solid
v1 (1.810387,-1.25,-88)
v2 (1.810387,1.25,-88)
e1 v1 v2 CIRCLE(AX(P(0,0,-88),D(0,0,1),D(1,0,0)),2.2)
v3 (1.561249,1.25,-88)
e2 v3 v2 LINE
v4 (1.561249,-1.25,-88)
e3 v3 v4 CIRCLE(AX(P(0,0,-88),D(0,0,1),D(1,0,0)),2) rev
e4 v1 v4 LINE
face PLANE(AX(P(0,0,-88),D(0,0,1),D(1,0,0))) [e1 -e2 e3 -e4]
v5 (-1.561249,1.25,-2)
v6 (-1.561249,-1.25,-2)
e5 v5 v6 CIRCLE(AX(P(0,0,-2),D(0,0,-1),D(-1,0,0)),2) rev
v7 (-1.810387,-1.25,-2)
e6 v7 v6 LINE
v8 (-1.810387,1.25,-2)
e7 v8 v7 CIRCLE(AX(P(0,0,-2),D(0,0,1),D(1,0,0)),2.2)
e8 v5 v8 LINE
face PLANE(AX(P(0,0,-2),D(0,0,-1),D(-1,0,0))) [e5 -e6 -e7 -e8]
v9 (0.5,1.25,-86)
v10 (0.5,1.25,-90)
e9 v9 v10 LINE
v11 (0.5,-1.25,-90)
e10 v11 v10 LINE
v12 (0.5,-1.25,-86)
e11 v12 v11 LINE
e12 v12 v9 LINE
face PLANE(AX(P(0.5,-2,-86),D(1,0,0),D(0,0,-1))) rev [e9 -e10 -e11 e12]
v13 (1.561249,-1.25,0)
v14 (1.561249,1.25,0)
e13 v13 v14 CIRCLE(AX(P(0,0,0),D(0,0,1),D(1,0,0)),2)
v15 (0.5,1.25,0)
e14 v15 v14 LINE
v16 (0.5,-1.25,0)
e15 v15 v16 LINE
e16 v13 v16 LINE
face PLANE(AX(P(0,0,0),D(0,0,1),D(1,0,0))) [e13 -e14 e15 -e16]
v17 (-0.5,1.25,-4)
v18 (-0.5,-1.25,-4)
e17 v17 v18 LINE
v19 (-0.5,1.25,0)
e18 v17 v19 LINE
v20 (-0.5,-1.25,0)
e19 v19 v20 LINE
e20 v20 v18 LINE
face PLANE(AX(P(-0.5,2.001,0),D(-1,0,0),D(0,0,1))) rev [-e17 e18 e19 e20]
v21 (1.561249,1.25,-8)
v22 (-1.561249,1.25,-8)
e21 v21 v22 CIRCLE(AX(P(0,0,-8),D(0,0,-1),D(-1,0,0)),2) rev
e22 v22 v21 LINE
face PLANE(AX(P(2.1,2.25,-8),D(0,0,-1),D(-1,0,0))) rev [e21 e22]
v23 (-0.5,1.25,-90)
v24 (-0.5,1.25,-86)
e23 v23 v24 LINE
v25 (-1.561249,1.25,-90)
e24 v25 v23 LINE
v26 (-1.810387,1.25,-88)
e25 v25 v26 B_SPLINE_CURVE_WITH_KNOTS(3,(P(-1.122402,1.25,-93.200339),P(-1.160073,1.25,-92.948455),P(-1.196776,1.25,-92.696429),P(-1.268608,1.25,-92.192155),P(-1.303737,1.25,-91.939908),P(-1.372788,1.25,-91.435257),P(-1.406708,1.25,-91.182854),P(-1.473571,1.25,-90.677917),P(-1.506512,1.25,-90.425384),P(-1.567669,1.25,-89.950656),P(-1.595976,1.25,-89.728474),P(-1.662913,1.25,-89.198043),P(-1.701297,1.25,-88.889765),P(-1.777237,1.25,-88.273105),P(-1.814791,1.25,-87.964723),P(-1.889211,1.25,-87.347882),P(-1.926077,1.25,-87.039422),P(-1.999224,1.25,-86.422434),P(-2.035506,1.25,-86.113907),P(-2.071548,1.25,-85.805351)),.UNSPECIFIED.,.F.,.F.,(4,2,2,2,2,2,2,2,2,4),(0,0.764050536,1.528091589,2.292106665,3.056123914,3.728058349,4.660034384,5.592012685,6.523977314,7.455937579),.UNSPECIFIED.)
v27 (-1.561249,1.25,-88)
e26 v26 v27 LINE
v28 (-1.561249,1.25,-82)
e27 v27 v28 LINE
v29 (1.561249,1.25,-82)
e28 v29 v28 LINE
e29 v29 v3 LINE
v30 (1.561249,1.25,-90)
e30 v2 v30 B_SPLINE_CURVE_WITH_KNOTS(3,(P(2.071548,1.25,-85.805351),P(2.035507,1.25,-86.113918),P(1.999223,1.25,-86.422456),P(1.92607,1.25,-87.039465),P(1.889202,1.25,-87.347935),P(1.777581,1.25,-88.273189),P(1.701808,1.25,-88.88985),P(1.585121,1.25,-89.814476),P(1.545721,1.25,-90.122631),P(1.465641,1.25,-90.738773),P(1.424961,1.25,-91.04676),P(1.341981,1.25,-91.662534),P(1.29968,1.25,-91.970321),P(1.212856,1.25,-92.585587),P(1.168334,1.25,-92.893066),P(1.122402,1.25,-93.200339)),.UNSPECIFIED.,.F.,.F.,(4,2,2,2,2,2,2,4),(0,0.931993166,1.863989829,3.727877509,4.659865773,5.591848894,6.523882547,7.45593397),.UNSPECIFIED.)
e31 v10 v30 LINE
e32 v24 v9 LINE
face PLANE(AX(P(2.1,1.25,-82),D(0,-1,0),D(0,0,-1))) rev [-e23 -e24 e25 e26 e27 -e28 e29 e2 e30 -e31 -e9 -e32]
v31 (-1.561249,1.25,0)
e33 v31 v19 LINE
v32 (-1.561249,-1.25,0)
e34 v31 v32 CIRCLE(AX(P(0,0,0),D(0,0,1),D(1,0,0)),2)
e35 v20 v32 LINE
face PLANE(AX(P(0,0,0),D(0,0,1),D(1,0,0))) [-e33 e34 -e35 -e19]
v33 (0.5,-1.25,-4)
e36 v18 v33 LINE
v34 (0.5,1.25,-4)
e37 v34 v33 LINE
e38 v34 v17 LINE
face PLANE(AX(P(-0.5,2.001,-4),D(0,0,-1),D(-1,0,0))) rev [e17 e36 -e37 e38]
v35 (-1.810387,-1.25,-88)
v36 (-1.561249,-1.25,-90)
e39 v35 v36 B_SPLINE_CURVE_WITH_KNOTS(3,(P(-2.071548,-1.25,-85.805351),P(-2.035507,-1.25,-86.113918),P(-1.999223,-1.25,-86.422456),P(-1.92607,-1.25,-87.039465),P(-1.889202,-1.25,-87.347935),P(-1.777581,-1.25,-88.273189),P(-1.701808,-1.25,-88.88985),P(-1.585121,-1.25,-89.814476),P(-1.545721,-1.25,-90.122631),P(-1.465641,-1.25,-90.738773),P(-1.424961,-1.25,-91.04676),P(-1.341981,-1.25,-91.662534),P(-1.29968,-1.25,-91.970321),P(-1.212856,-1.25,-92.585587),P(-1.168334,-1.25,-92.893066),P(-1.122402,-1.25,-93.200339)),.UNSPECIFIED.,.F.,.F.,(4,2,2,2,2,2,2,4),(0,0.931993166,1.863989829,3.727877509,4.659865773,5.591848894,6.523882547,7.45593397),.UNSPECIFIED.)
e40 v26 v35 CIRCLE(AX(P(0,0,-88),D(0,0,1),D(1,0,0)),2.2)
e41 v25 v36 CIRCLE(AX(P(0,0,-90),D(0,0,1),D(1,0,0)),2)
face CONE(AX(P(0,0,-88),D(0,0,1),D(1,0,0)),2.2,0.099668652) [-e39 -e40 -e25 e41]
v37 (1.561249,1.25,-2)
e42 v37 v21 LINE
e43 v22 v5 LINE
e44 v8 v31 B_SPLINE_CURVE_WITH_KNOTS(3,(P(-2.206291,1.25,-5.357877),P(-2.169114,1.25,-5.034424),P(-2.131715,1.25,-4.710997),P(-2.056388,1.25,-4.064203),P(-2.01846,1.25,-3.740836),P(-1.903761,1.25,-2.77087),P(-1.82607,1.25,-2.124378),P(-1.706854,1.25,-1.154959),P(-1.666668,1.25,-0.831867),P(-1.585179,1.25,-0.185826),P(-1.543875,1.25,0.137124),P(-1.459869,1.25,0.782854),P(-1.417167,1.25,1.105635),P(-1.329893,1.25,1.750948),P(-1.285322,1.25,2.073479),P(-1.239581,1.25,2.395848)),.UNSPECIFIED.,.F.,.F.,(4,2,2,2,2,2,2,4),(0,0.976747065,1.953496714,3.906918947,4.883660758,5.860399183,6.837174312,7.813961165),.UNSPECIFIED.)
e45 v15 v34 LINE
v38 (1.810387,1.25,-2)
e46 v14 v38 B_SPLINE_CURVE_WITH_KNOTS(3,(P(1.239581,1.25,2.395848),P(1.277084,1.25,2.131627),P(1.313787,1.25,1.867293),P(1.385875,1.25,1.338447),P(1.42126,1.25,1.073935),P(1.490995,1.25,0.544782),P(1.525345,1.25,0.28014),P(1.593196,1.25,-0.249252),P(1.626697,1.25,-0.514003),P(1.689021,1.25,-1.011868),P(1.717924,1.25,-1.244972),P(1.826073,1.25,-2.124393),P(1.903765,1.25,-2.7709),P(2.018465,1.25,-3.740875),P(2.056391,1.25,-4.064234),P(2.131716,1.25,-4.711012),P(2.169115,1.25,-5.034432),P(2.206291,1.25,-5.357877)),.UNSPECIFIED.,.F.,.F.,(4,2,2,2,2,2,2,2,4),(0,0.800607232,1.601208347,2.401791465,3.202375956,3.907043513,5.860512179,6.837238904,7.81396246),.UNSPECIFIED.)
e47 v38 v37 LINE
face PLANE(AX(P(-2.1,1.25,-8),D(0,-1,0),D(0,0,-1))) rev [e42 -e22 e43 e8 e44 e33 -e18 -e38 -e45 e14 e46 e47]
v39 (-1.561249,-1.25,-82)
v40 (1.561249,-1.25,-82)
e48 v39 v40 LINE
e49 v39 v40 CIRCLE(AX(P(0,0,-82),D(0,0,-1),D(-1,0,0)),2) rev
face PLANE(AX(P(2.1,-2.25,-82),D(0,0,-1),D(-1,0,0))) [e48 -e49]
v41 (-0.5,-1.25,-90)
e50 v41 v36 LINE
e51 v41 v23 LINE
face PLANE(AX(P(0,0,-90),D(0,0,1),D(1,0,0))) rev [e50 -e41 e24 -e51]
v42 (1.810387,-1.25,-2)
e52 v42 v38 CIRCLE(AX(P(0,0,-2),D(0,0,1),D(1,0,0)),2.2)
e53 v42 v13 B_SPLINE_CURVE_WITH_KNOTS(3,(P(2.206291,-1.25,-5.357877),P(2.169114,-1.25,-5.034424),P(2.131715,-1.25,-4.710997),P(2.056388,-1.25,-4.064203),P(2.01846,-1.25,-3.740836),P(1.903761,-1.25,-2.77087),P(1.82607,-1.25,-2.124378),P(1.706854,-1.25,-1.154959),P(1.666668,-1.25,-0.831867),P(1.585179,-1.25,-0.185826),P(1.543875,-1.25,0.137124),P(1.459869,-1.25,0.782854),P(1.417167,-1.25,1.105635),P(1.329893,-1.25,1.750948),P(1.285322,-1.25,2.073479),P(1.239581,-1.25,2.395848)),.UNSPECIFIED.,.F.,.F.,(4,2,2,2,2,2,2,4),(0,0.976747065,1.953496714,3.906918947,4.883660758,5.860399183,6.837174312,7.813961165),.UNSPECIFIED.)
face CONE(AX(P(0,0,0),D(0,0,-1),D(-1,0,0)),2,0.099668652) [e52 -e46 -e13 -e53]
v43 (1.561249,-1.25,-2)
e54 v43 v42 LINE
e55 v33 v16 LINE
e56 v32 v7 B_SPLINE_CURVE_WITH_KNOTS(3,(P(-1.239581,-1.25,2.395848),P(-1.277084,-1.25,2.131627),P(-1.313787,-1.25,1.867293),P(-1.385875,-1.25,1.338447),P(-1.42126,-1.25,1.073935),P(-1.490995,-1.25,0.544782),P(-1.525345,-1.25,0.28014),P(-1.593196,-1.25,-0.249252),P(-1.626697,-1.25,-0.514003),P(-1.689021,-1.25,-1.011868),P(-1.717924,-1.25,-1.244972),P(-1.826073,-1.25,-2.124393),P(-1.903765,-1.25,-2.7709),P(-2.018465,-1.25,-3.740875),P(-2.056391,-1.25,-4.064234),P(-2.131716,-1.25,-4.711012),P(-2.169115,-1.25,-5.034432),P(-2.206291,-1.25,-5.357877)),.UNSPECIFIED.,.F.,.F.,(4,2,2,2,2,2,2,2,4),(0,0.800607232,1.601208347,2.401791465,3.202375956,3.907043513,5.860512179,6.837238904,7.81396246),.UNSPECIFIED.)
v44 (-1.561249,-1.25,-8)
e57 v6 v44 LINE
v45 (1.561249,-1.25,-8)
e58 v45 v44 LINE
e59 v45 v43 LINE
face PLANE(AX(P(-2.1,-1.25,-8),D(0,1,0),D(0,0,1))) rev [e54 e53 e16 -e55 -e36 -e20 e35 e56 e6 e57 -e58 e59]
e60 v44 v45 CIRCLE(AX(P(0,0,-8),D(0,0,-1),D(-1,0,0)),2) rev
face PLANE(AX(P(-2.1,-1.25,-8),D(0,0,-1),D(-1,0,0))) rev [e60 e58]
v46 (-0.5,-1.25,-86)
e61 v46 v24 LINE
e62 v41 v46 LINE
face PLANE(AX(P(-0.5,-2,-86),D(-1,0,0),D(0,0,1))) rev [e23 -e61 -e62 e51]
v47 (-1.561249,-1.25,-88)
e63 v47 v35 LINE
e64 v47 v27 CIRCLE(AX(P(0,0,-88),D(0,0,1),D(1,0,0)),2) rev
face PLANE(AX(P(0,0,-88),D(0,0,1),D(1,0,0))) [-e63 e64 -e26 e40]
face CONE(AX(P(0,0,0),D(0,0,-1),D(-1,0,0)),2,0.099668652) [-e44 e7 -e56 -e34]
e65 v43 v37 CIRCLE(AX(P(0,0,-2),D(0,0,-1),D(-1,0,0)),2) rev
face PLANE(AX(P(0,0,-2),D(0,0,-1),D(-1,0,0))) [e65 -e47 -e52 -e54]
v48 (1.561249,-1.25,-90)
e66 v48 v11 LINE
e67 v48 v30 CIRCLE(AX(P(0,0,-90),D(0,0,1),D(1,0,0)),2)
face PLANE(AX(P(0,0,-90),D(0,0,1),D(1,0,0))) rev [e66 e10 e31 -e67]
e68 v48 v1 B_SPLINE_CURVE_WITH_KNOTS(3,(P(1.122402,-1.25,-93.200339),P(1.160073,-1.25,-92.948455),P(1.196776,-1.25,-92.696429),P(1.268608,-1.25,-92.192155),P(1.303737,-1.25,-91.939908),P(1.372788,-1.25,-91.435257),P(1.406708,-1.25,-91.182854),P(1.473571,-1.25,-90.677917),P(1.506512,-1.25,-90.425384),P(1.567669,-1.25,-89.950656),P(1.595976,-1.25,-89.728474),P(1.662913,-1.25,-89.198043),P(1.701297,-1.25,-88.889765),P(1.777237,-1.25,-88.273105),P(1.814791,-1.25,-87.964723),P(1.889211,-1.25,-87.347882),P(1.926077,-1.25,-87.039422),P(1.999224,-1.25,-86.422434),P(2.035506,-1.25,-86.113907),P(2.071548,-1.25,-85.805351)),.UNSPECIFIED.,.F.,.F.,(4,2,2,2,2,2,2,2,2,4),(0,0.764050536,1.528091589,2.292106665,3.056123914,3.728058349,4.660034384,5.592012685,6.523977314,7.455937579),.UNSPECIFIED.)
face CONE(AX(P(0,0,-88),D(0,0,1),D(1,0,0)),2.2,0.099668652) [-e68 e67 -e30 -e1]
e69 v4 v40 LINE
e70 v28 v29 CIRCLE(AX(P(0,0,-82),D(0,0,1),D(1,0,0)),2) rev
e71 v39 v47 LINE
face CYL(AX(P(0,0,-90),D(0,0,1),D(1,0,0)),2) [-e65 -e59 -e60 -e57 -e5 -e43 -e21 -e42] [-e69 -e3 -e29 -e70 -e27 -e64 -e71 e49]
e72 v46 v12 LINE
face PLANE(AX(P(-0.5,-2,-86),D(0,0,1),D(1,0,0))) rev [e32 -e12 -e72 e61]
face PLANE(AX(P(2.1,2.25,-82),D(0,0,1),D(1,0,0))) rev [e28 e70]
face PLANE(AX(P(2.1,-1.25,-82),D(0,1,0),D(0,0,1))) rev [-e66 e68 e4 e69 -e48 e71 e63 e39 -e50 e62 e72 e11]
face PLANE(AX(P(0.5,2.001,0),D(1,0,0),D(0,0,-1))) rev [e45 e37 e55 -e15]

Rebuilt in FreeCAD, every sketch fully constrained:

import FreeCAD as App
import Part
import Sketcher

V = App.Vector
Q = App.Units.Quantity


def add_polygon(sketch, points):
    """Adds a closed chain of lines whose ends are joined by coincident constraints."""
    first, n = sketch.GeometryCount, len(points)
    for a, b in zip(points, points[1:] + points[:1]):
        sketch.addGeometry(Part.LineSegment(App.Vector(*a, 0), App.Vector(*b, 0)), False)
    for i in range(n):
        sketch.addConstraint(Sketcher.Constraint("Coincident", first + i, 2, first + (i + 1) % n, 1))

doc = App.newDocument("Part")
body = doc.addObject("PartDesign::Body", "Body")

sketch1 = doc.addObject("Sketcher::SketchObject", "Sketch")
body.addObject(sketch1)
sketch1.AttachmentSupport = (doc.XY_Plane, [""])
sketch1.MapMode = "FlatFace"
sketch1.addGeometry(Part.Circle(V(0, 0, 0), V(0, 0, 1), 2), False)
sketch1.addConstraint([
    Sketcher.Constraint("Coincident", 0, 3, -1, 1),
    Sketcher.Constraint("Diameter", 0, Q("4 mm")),
])
pad1 = doc.addObject("PartDesign::Pad", "Pad")
body.addObject(pad1)
pad1.Profile = sketch1
pad1.Length = 90
pad1.Reversed = True

sketch2 = doc.addObject("Sketcher::SketchObject", "Sketch001")
body.addObject(sketch2)
sketch2.AttachmentSupport = (doc.XZ_Plane, [""])
sketch2.MapMode = "FlatFace"
add_polygon(sketch2, [(0, -2), (0, 0), (2, 0), (2.2, -2)])
sketch2.addConstraint([
    Sketcher.Constraint("Vertical", 0),
    Sketcher.Constraint("Horizontal", 1),
    Sketcher.Constraint("Horizontal", 3),
    Sketcher.Constraint("Coincident", 0, 2, -1, 1),
    Sketcher.Constraint("Equal", 1, 0),
    Sketcher.Constraint("DistanceX", 1, 1, 1, 2, Q("2 mm")),
    Sketcher.Constraint("DistanceX", 3, 2, 3, 1, Q("2.2 mm")),
])
revolution = doc.addObject("PartDesign::Revolution", "Revolution")
body.addObject(revolution)
revolution.Profile = sketch2
revolution.ReferenceAxis = (sketch2, ["V_Axis"])
revolution.Angle = 360

sketch3 = doc.addObject("Sketcher::SketchObject", "Sketch002")
body.addObject(sketch3)
sketch3.AttachmentSupport = (doc.XY_Plane, [""])
sketch3.MapMode = "FlatFace"
add_polygon(sketch3, [(-2.1, 2.2), (-2.1, 1.2), (2.1, 1.2), (2.1, 2.2)])
add_polygon(sketch3, [(-2.1, -1.2), (-2.1, -2.2), (2.1, -2.2), (2.1, -1.2)])
sketch3.addConstraint([
    Sketcher.Constraint("Vertical", 0),
    Sketcher.Constraint("Horizontal", 1),
    Sketcher.Constraint("Vertical", 2),
    Sketcher.Constraint("Horizontal", 3),
    Sketcher.Constraint("Vertical", 4),
    Sketcher.Constraint("Horizontal", 5),
    Sketcher.Constraint("Vertical", 6),
    Sketcher.Constraint("Horizontal", 7),
    Sketcher.Constraint("Symmetric", 2, 2, 4, 2, -1, 1),
    Sketcher.Constraint("Symmetric", 0, 2, 6, 2, -1, 1),
    Sketcher.Constraint("Vertical", 3, 2, 4, 2),
    Sketcher.Constraint("DistanceY", 0, 2, 0, 1, Q("1 mm")),
    Sketcher.Constraint("DistanceX", 1, 1, 1, 2, Q("4.2 mm")),
    Sketcher.Constraint("DistanceY", 4, 2, 0, 2, Q("3.5 mm")),
])
pocket1 = doc.addObject("PartDesign::Pocket", "Pocket")
body.addObject(pocket1)
pocket1.Profile = sketch3
pocket1.Length = 8

sketch4 = doc.addObject("Sketcher::SketchObject", "Sketch003")
body.addObject(sketch4)
sketch4.AttachmentSupport = (doc.XZ_Plane, [""])
sketch4.MapMode = "FlatFace"
sketch4.AttachmentOffset = App.Placement(V(0, 0, 1.25), App.Rotation())
add_polygon(sketch4, [(-0.5, 0), (-0.5, -4), (0.5, -4), (0.5, 0)])
sketch4.addConstraint([
    Sketcher.Constraint("Vertical", 0),
    Sketcher.Constraint("Horizontal", 1),
    Sketcher.Constraint("Vertical", 2),
    Sketcher.Constraint("Horizontal", 3),
    Sketcher.Constraint("Symmetric", 2, 2, 3, 2, -1, 1),
    Sketcher.Constraint("DistanceX", 1, 1, 1, 2, Q("1 mm")),
    Sketcher.Constraint("DistanceY", 0, 2, 0, 1, Q("4 mm")),
])
pocket2 = doc.addObject("PartDesign::Pocket", "Pocket001")
body.addObject(pocket2)
pocket2.Profile = sketch4
pocket2.Type = "UpToFirst"

sketch5 = doc.addObject("Sketcher::SketchObject", "Sketch004")
body.addObject(sketch5)
sketch5.AttachmentSupport = (doc.XZ_Plane, [""])
sketch5.MapMode = "FlatFace"
add_polygon(sketch5, [(0, -90), (0, -88), (2.2, -88), (2, -90)])
sketch5.addConstraint([
    Sketcher.Constraint("Vertical", 0),
    Sketcher.Constraint("Horizontal", 1),
    Sketcher.Constraint("Horizontal", 3),
    Sketcher.Constraint("PointOnObject", 0, 2, -2),
    Sketcher.Constraint("Equal", 3, 0),
    Sketcher.Constraint("DistanceX", 3, 2, 3, 1, Q("2 mm")),
    Sketcher.Constraint("DistanceX", 1, 1, 1, 2, Q("2.2 mm")),
    Sketcher.Constraint("DistanceY", 0, 2, -1, 1, Q("88 mm")),
])
revolution2 = doc.addObject("PartDesign::Revolution", "Revolution001")
body.addObject(revolution2)
revolution2.Profile = sketch5
revolution2.ReferenceAxis = (sketch5, ["V_Axis"])
revolution2.Angle = 360

sketch6 = doc.addObject("Sketcher::SketchObject", "Sketch005")
body.addObject(sketch6)
sketch6.AttachmentSupport = (doc.XY_Plane, [""])
sketch6.MapMode = "FlatFace"
sketch6.AttachmentOffset = App.Placement(V(0, 0, -90), App.Rotation())
add_polygon(sketch6, [(2.1, 2.2), (2.1, 1.2), (-2.1, 1.2), (-2.1, 2.2)])
add_polygon(sketch6, [(2.1, -1.2), (2.1, -2.2), (-2.1, -2.2), (-2.1, -1.2)])
sketch6.addConstraint([
    Sketcher.Constraint("Vertical", 0),
    Sketcher.Constraint("Horizontal", 1),
    Sketcher.Constraint("Vertical", 2),
    Sketcher.Constraint("Horizontal", 3),
    Sketcher.Constraint("Vertical", 4),
    Sketcher.Constraint("Horizontal", 5),
    Sketcher.Constraint("Vertical", 6),
    Sketcher.Constraint("Horizontal", 7),
    Sketcher.Constraint("Symmetric", 2, 2, 4, 2, -1, 1),
    Sketcher.Constraint("Symmetric", 0, 2, 6, 2, -1, 1),
    Sketcher.Constraint("Vertical", 3, 2, 4, 2),
    Sketcher.Constraint("DistanceY", 0, 2, 0, 1, Q("1 mm")),
    Sketcher.Constraint("DistanceX", 1, 2, 1, 1, Q("4.2 mm")),
    Sketcher.Constraint("DistanceY", 4, 2, 0, 2, Q("3.5 mm")),
])
pocket3 = doc.addObject("PartDesign::Pocket", "Pocket002")
body.addObject(pocket3)
pocket3.Profile = sketch6
pocket3.Length = 8
pocket3.Reversed = True

sketch7 = doc.addObject("Sketcher::SketchObject", "Sketch006")
body.addObject(sketch7)
sketch7.AttachmentSupport = (doc.XZ_Plane, [""])
sketch7.MapMode = "FlatFace"
sketch7.AttachmentOffset = App.Placement(V(0, 0, -1.25), App.Rotation())
add_polygon(sketch7, [(-0.5, -90), (-0.5, -86), (0.5, -86), (0.5, -90)])
sketch7.addConstraint([
    Sketcher.Constraint("Vertical", 0),
    Sketcher.Constraint("Horizontal", 1),
    Sketcher.Constraint("Vertical", 2),
    Sketcher.Constraint("Horizontal", 3),
    Sketcher.Constraint("DistanceX", 1, 1, 1, 2, Q("1 mm")),
    Sketcher.Constraint("DistanceY", 0, 1, 0, 2, Q("4 mm")),
    Sketcher.Constraint("DistanceY", 0, 2, -1, 1, Q("86 mm")),
    Sketcher.Constraint("DistanceX", 0, 2, -1, 1, Q("0.5 mm")),
])
pocket4 = doc.addObject("PartDesign::Pocket", "Pocket003")
body.addObject(pocket4)
pocket4.Profile = sketch7
pocket4.Type = "ThroughAll"
pocket4.Reversed = True

doc.recompute()
